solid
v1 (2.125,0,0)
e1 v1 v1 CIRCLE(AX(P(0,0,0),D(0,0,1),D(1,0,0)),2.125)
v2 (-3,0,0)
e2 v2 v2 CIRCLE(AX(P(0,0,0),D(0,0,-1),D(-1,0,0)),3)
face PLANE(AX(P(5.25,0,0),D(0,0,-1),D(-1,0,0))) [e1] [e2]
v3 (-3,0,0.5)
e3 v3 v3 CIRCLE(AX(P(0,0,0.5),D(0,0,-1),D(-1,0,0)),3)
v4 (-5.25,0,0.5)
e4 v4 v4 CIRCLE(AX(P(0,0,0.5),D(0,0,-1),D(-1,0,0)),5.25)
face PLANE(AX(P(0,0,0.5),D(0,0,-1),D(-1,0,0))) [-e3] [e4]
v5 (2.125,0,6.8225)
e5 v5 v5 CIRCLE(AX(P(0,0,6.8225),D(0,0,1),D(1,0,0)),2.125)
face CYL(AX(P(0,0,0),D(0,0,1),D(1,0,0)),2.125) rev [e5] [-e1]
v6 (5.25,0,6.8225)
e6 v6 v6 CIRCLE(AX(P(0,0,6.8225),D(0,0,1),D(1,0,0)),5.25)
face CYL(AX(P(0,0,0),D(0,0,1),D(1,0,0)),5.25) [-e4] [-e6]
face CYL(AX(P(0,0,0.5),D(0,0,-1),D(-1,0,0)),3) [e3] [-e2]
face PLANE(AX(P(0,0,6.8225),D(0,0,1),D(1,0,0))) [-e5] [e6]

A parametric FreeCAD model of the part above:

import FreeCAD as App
import Part
import Sketcher
from FreeCAD import Vector
Q = App.Units.Quantity

doc = App.newDocument("Part")
body = doc.addObject("PartDesign::Body", "Body")

# Sketch on XZ plane
sketch1 = body.newObject("Sketcher::SketchObject", "Sketch")
sketch1.AttachmentSupport = (doc.getObject("XZ_Plane"), [""])
sketch1.MapMode = "FlatFace"
sketch1.addGeometry([
    Part.LineSegment(Vector(2.1, 0, 0), Vector(2.1, 3.8, 0)),
    Part.LineSegment(Vector(2.1, 3.8, 0), Vector(5.2, 3.8, 0)),
    Part.LineSegment(Vector(5.2, 3.8, 0), Vector(5.2, 0, 0)),
    Part.LineSegment(Vector(5.2, 0, 0), Vector(2.1, 0, 0)),
], False)
sketch1.addConstraint([
    Sketcher.Constraint("Coincident", 0, 2, 1, 1),
    Sketcher.Constraint("Coincident", 1, 2, 2, 1),
    Sketcher.Constraint("Coincident", 2, 2, 3, 1),
    Sketcher.Constraint("Coincident", 3, 2, 0, 1),
    Sketcher.Constraint("Vertical", 0),
    Sketcher.Constraint("Horizontal", 1),
    Sketcher.Constraint("Vertical", 2),
    Sketcher.Constraint("Horizontal", 3),
    Sketcher.Constraint("PointOnObject", 2, 2, -1),
    Sketcher.Constraint("DistanceY", 0, 1, 0, 2, Q("3.75 mm")),
    Sketcher.Constraint("DistanceX", 1, 1, 1, 2, Q("3.125 mm")),
    Sketcher.Constraint("DistanceX", -1, 1, 1, 2, Q("5.25 mm")),
])
revolution = body.newObject("PartDesign::Revolution", "Revolution")
revolution.Profile = sketch1
revolution.ReferenceAxis = (sketch1, ["V_Axis"])
revolution.Angle = 360

# Sketch on XY plane
sketch2 = body.newObject("Sketcher::SketchObject", "Sketch001")
sketch2.AttachmentSupport = (doc.getObject("XY_Plane"), [""])
sketch2.MapMode = "FlatFace"
sketch2.AttachmentOffset = App.Placement(Vector(0, 0, 3.75), App.Rotation())
sketch2.addGeometry([
    Part.Circle(Vector(0, 0, 0), Vector(0, 0, 1), 5.2),
    Part.Circle(Vector(0, 0, 0), Vector(0, 0, 1), 2.1),
], False)
sketch2.addConstraint([
    Sketcher.Constraint("Coincident", 0, 3, -1, 1),
    Sketcher.Constraint("Coincident", 1, 3, -1, 1),
    Sketcher.Constraint("Diameter", 0, Q("10.5 mm")),
    Sketcher.Constraint("Diameter", 1, Q("4.25 mm")),
])
pad1 = body.newObject("PartDesign::Pad", "Pad")
pad1.Profile = sketch2
pad1.Length = 3.0725

# Sketch on XY plane
sketch3 = body.newObject("Sketcher::SketchObject", "Sketch002")
sketch3.AttachmentSupport = (doc.getObject("XY_Plane"), [""])
sketch3.MapMode = "FlatFace"
sketch3.addGeometry([
    Part.Circle(Vector(0, 0, 0), Vector(0, 0, 1), 5.2),
    Part.Circle(Vector(0, 0, 0), Vector(0, 0, 1), 3),
], False)
sketch3.addConstraint([
    Sketcher.Constraint("Coincident", 0, 3, -1, 1),
    Sketcher.Constraint("Coincident", 1, 3, -1, 1),
    Sketcher.Constraint("Diameter", 1, Q("6 mm")),
    Sketcher.Constraint("Diameter", 0, Q("10.5 mm")),
])
pocket1 = body.newObject("PartDesign::Pocket", "Pocket")
pocket1.Profile = sketch3
pocket1.Length = 0.5
pocket1.Reversed = True

doc.recompute()
